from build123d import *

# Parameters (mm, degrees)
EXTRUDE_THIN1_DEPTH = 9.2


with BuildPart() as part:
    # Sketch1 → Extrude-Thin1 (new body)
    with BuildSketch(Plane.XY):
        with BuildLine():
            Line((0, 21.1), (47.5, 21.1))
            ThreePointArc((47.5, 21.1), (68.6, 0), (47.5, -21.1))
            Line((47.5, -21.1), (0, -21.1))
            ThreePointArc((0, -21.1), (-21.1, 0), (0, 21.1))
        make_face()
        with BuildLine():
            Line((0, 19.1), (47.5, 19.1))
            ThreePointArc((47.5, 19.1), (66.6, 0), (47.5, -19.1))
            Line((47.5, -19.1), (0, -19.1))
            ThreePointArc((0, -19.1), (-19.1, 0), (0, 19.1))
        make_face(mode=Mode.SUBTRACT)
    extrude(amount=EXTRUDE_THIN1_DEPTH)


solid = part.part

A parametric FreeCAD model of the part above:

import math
import FreeCAD as App
import Part
import Sketcher
from FreeCAD import Vector
Q = App.Units.Quantity

doc = App.newDocument("Part")
body = doc.addObject("PartDesign::Body", "Body")

sketch1 = body.newObject("Sketcher::SketchObject", "Sketch")
sketch1.AttachmentSupport = (doc.getObject("XY_Plane"), [""])
sketch1.MapMode = "FlatFace"
sketch1.addGeometry([
    Part.LineSegment(Vector(47.5, 21.1, 0), Vector(0, 21.1, 0)),
    Part.ArcOfCircle(Part.Circle(Vector(0, 0, 0), Vector(0, 0, 1), 21.1), math.radians(90), math.radians(270)),
    Part.LineSegment(Vector(0, -21.1, 0), Vector(47.5, -21.1, 0)),
    Part.ArcOfCircle(Part.Circle(Vector(47.5, 0, 0), Vector(0, 0, 1), 21.1), math.radians(-90), math.radians(90)),
    Part.LineSegment(Vector(0, 19.1, 0), Vector(47.5, 19.1, 0)),
    Part.ArcOfCircle(Part.Circle(Vector(47.5, 0, 0), Vector(0, 0, 1), 19.1), math.radians(-90), math.radians(90)),
    Part.LineSegment(Vector(47.5, -19.1, 0), Vector(0, -19.1, 0)),
    Part.ArcOfCircle(Part.Circle(Vector(0, 0, 0), Vector(0, 0, 1), 19.1), math.radians(90), math.radians(270)),
], False)
sketch1.addConstraint([
    Sketcher.Constraint("Tangent", 0, 2, 1, 1),
    Sketcher.Constraint("Tangent", 1, 2, 2, 1),
    Sketcher.Constraint("Tangent", 2, 2, 3, 1),
    Sketcher.Constraint("Tangent", 3, 2, 0, 1),
    Sketcher.Constraint("Tangent", 4, 2, 5, 2),
    Sketcher.Constraint("Tangent", 5, 1, 6, 1),
    Sketcher.Constraint("Tangent", 6, 2, 7, 2),
    Sketcher.Constraint("Tangent", 7, 1, 4, 1),
    Sketcher.Constraint("Horizontal", 0),
    Sketcher.Constraint("Horizontal", 2),
    Sketcher.Constraint("Horizontal", 4),
    Sketcher.Constraint("Horizontal", 6),
    Sketcher.Constraint("Coincident", 1, 3, -1, 1),
    Sketcher.Constraint("Coincident", 7, 3, -1, 1),
    Sketcher.Constraint("Vertical", 5, 3, 2, 2),
    Sketcher.Constraint("Radius", 1, Q("21.1 mm")),
    Sketcher.Constraint("Radius", 5, Q("19.1 mm")),
    Sketcher.Constraint("DistanceX", 0, 2, 0, 1, Q("47.5 mm")),
])
pad1 = body.newObject("PartDesign::Pad", "Pad")
pad1.Profile = sketch1
pad1.Length = 9.2

doc.recompute()
